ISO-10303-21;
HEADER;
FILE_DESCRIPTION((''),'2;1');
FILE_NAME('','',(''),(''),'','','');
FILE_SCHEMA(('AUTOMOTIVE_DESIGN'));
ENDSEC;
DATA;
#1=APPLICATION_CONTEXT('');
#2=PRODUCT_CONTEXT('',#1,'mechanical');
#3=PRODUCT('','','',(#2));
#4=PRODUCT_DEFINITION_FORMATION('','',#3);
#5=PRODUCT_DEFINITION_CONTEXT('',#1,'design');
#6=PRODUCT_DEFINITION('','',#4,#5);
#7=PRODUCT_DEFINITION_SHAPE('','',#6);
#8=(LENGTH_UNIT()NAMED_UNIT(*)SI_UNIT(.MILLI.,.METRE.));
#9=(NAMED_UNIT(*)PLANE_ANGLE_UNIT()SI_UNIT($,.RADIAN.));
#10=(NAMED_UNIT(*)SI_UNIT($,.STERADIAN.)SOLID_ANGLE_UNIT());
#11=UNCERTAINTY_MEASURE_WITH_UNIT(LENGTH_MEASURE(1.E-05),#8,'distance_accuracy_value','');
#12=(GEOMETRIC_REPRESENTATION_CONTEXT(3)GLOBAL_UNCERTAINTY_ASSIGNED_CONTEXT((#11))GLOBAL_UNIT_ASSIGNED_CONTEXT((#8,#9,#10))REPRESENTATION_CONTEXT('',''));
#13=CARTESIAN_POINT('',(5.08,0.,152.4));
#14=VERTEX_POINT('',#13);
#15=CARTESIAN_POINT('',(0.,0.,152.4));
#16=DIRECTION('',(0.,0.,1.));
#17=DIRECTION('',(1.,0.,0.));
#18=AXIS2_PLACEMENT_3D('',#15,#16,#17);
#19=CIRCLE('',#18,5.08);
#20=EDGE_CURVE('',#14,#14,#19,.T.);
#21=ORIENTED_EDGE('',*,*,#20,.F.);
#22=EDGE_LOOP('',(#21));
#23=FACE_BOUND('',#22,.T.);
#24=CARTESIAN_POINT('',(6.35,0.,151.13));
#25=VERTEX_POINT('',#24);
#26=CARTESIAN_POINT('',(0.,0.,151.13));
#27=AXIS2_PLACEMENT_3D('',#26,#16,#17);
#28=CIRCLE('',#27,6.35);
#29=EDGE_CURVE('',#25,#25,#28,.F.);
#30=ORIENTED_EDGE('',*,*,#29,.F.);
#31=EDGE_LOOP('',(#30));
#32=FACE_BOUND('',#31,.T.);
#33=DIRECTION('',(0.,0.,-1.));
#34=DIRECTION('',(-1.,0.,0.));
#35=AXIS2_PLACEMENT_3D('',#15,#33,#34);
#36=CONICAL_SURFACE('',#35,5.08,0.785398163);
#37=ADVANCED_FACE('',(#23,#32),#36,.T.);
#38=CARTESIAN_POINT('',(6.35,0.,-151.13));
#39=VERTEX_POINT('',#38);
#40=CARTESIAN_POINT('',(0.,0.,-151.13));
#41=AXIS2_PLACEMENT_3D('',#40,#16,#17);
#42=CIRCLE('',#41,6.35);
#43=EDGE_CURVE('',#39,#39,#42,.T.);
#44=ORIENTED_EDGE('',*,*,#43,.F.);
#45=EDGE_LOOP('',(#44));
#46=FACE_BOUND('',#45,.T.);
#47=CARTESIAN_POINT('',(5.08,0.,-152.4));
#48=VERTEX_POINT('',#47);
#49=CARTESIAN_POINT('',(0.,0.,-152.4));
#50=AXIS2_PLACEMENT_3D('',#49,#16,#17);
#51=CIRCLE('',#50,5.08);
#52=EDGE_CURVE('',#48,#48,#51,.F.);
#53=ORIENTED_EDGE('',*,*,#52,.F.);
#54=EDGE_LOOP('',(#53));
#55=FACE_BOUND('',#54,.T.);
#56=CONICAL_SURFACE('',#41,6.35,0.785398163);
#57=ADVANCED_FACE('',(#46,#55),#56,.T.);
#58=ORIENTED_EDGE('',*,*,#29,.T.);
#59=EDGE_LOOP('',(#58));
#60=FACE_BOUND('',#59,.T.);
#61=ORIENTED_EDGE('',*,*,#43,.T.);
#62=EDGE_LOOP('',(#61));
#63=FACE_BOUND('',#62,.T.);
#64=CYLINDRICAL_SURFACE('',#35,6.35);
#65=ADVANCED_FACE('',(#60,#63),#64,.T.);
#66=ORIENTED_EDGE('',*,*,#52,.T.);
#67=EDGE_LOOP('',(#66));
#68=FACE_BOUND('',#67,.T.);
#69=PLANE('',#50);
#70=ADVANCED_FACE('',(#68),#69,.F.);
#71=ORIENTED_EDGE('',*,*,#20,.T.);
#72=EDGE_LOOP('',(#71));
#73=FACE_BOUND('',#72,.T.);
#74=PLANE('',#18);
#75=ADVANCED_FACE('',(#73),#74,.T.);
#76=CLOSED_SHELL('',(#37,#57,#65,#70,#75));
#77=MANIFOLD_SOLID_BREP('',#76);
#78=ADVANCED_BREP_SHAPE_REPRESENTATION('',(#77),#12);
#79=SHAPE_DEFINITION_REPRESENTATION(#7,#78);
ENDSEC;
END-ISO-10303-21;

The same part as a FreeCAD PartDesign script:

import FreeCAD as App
import Part
import Sketcher

V = App.Vector
Q = App.Units.Quantity


def edges_at(feature, points):
    """Names of the edges that pass closest to the given points."""
    edges = feature.Shape.Edges
    near = lambda p: min(range(len(edges)), key=lambda i: edges[i].distToShape(Part.Vertex(*p))[0])
    return sorted({f"Edge{near(p) + 1}" for p in points})

doc = App.newDocument("Part")
body = doc.addObject("PartDesign::Body", "Body")

# Sketch on XY plane
sketch1 = body.newObject("Sketcher::SketchObject", "Sketch")
sketch1.AttachmentSupport = (doc.getObject("XY_Plane"), [""])
sketch1.MapMode = "FlatFace"
sketch1.addGeometry(Part.Circle(V(0, 0, 0), V(0, 0, 1), 6), False)
sketch1.addConstraint([
    Sketcher.Constraint("Coincident", 0, 3, -1, 1),
    Sketcher.Constraint("Diameter", 0, Q("0.5 in")),
])
pad1 = body.newObject("PartDesign::Pad", "Pad")
pad1.Profile = sketch1
pad1.Length = Q("12 in")
pad1.Midplane = True
doc.recompute()

chamfer = body.newObject("PartDesign::Chamfer", "Chamfer")
chamfer.Base = (pad1, edges_at(pad1, [(-6.35, 0, -152.4), (-6.35, 0, 152.4)]))
chamfer.Size = Q("0.05 in")

doc.recompute()
